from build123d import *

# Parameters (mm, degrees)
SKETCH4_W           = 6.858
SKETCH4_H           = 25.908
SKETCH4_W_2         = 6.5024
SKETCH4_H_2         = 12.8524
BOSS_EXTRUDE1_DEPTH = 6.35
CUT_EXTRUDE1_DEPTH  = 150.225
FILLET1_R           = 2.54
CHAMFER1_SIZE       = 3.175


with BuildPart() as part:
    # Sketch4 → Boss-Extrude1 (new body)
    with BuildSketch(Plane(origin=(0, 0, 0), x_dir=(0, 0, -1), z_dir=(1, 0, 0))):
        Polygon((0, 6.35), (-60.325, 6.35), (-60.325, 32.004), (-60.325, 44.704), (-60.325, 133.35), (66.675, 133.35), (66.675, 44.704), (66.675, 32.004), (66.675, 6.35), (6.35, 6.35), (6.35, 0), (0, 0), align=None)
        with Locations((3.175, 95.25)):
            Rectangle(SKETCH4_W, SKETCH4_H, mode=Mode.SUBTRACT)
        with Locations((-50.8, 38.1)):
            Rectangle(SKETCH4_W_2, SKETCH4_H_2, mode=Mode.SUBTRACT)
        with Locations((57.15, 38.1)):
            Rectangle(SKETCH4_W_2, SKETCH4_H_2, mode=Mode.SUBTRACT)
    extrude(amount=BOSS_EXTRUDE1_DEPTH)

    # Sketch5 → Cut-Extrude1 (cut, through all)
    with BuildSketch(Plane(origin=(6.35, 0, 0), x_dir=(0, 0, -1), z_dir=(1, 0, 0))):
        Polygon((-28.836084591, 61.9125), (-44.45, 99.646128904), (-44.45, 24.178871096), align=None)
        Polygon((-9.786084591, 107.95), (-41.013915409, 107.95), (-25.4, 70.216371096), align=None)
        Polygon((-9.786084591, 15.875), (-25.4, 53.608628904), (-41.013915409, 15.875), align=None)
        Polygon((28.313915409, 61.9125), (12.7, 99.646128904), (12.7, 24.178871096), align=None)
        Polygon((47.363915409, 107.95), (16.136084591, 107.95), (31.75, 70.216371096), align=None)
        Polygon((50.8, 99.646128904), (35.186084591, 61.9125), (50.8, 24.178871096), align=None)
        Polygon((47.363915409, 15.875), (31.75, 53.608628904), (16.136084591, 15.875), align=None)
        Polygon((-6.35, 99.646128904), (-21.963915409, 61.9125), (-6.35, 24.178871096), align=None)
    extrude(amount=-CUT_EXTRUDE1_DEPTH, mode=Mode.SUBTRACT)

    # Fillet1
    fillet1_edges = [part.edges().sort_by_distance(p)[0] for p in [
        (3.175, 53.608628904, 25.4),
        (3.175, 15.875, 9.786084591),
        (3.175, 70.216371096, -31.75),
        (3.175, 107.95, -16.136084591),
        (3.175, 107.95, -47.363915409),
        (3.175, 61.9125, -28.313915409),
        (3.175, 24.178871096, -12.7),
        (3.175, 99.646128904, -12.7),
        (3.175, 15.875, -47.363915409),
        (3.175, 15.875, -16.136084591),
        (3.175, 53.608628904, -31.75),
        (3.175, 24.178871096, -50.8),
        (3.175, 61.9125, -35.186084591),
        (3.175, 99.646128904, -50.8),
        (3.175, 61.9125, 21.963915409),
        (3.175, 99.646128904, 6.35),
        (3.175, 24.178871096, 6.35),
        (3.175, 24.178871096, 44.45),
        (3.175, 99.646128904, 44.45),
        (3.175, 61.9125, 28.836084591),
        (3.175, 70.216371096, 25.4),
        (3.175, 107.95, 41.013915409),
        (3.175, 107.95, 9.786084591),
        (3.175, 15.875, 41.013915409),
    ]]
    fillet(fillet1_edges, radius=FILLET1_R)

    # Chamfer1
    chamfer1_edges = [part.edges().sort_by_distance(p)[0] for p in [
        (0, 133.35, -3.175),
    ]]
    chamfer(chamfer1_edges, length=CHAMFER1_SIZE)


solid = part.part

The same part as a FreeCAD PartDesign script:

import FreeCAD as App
import Part
import Sketcher
Q = App.Units.Quantity


def edges_at(feature, points):
    """Names of the edges that pass closest to the given points."""
    edges = feature.Shape.Edges
    near = lambda p: min(range(len(edges)), key=lambda i: edges[i].distToShape(Part.Vertex(*p))[0])
    return sorted({f"Edge{near(p) + 1}" for p in points})

doc = App.newDocument("Part")
body = doc.addObject("PartDesign::Body", "Body")

sketch1 = doc.addObject("Sketcher::SketchObject", "Sketch")
body.addObject(sketch1)
sketch1.AttachmentSupport = (doc.YZ_Plane, [""])
sketch1.MapMode = "FlatFace"
sketch1.addGeometry([
    Part.LineSegment(App.Vector(6, 60, 0), App.Vector(6, 0, 0)),
    Part.LineSegment(App.Vector(6, 0, 0), App.Vector(0, 0, 0)),
    Part.LineSegment(App.Vector(0, 0, 0), App.Vector(0, -6, 0)),
    Part.LineSegment(App.Vector(0, -6, 0), App.Vector(6, -6, 0)),
    Part.LineSegment(App.Vector(6, -6, 0), App.Vector(6, -67, 0)),
    Part.LineSegment(App.Vector(6, -67, 0), App.Vector(133, -67, 0)),
    Part.LineSegment(App.Vector(133, -67, 0), App.Vector(133, 60, 0)),
    Part.LineSegment(App.Vector(133, 60, 0), App.Vector(6, 60, 0)),
    Part.LineSegment(App.Vector(32, -54, 0), App.Vector(45, -54, 0)),
    Part.LineSegment(App.Vector(45, -54, 0), App.Vector(45, -60, 0)),
    Part.LineSegment(App.Vector(45, -60, 0), App.Vector(32, -60, 0)),
    Part.LineSegment(App.Vector(32, -60, 0), App.Vector(32, -54, 0)),
    Part.LineSegment(App.Vector(32, 54, 0), App.Vector(45, 54, 0)),
    Part.LineSegment(App.Vector(45, 54, 0), App.Vector(45, 48, 0)),
    Part.LineSegment(App.Vector(45, 48, 0), App.Vector(32, 48, 0)),
    Part.LineSegment(App.Vector(32, 48, 0), App.Vector(32, 54, 0)),
    Part.LineSegment(App.Vector(82, 0, 0), App.Vector(108, 0, 0)),
    Part.LineSegment(App.Vector(108, 0, 0), App.Vector(108, -7, 0)),
    Part.LineSegment(App.Vector(108, -7, 0), App.Vector(82, -7, 0)),
    Part.LineSegment(App.Vector(82, -7, 0), App.Vector(82, 0, 0)),
], False)
sketch1.addConstraint([
    Sketcher.Constraint("Coincident", 0, 2, 1, 1),
    Sketcher.Constraint("Coincident", 1, 2, 2, 1),
    Sketcher.Constraint("Coincident", 2, 2, 3, 1),
    Sketcher.Constraint("Coincident", 3, 2, 4, 1),
    Sketcher.Constraint("Coincident", 4, 2, 5, 1),
    Sketcher.Constraint("Coincident", 5, 2, 6, 1),
    Sketcher.Constraint("Coincident", 6, 2, 7, 1),
    Sketcher.Constraint("Coincident", 7, 2, 0, 1),
    Sketcher.Constraint("Coincident", 8, 2, 9, 1),
    Sketcher.Constraint("Coincident", 9, 2, 10, 1),
    Sketcher.Constraint("Coincident", 10, 2, 11, 1),
    Sketcher.Constraint("Coincident", 11, 2, 8, 1),
    Sketcher.Constraint("Coincident", 12, 2, 13, 1),
    Sketcher.Constraint("Coincident", 13, 2, 14, 1),
    Sketcher.Constraint("Coincident", 14, 2, 15, 1),
    Sketcher.Constraint("Coincident", 15, 2, 12, 1),
    Sketcher.Constraint("Coincident", 16, 2, 17, 1),
    Sketcher.Constraint("Coincident", 17, 2, 18, 1),
    Sketcher.Constraint("Coincident", 18, 2, 19, 1),
    Sketcher.Constraint("Coincident", 19, 2, 16, 1),
    Sketcher.Constraint("Vertical", 0),
    Sketcher.Constraint("Horizontal", 1),
    Sketcher.Constraint("Vertical", 2),
    Sketcher.Constraint("Horizontal", 3),
    Sketcher.Constraint("Vertical", 4),
    Sketcher.Constraint("Horizontal", 5),
    Sketcher.Constraint("Vertical", 6),
    Sketcher.Constraint("Horizontal", 7),
    Sketcher.Constraint("Horizontal", 8),
    Sketcher.Constraint("Vertical", 9),
    Sketcher.Constraint("Horizontal", 10),
    Sketcher.Constraint("Vertical", 11),
    Sketcher.Constraint("Horizontal", 12),
    Sketcher.Constraint("Vertical", 13),
    Sketcher.Constraint("Horizontal", 14),
    Sketcher.Constraint("Vertical", 15),
    Sketcher.Constraint("Horizontal", 16),
    Sketcher.Constraint("Vertical", 17),
    Sketcher.Constraint("Horizontal", 18),
    Sketcher.Constraint("Vertical", 19),
    Sketcher.Constraint("Coincident", 1, 2, -1, 1),
    Sketcher.Constraint("Vertical", 0, 2, 3, 2),
    Sketcher.Constraint("Vertical", 9, 2, 12, 2),
    Sketcher.Constraint("Vertical", 11, 2, 14, 2),
    Sketcher.Constraint("Equal", 3, 2),
    Sketcher.Constraint("Equal", 0, 4),
    Sketcher.Constraint("Equal", 7, 6),
    Sketcher.Constraint("Equal", 11, 13),
    Sketcher.Constraint("DistanceX", 5, 1, 5, 2, Q("5 in")),
    Sketcher.Constraint("DistanceX", 1, 2, 1, 1, Q("0.25 in")),
    Sketcher.Constraint("DistanceX", 16, 1, 16, 2, Q("1.02 in")),
    Sketcher.Constraint("DistanceY", 17, 2, 17, 1, Q("0.27 in")),
    Sketcher.Constraint("DistanceX", 8, 1, 8, 2, Q("0.506 in")),
    Sketcher.Constraint("DistanceY", 9, 2, 9, 1, Q("0.256 in")),
    Sketcher.Constraint("DistanceX", -1, 1, 16, 2, Q("4.26 in")),
    Sketcher.Constraint("DistanceY", -1, 1, 16, 2, Q("0.01 in")),
    Sketcher.Constraint("DistanceX", -1, 1, 8, 2, Q("1.753 in")),
    Sketcher.Constraint("DistanceY", 8, 2, -1, 1, Q("2.122 in")),
    Sketcher.Constraint("DistanceY", -1, 1, 12, 2, Q("2.128 in")),
])
pad1 = doc.addObject("PartDesign::Pad", "Pad")
body.addObject(pad1)
pad1.Profile = sketch1
pad1.Length = Q("0.25 in")

sketch2 = doc.addObject("Sketcher::SketchObject", "Sketch001")
body.addObject(sketch2)
sketch2.AttachmentSupport = (doc.YZ_Plane, [""])
sketch2.MapMode = "FlatFace"
sketch2.AttachmentOffset = App.Placement(App.Vector(0, 0, 0.25 * 25.4), App.Rotation())
sketch2.addGeometry([
    Part.LineSegment(App.Vector(62, 29, 0), App.Vector(100, 44, 0)),
    Part.LineSegment(App.Vector(100, 44, 0), App.Vector(24, 44, 0)),
    Part.LineSegment(App.Vector(24, 44, 0), App.Vector(62, 29, 0)),
    Part.LineSegment(App.Vector(108, 10, 0), App.Vector(108, 41, 0)),
    Part.LineSegment(App.Vector(108, 41, 0), App.Vector(70, 25, 0)),
    Part.LineSegment(App.Vector(70, 25, 0), App.Vector(108, 10, 0)),
    Part.LineSegment(App.Vector(16, 10, 0), App.Vector(54, 25, 0)),
    Part.LineSegment(App.Vector(54, 25, 0), App.Vector(16, 41, 0)),
    Part.LineSegment(App.Vector(16, 41, 0), App.Vector(16, 10, 0)),
    Part.LineSegment(App.Vector(62, -28, 0), App.Vector(100, -13, 0)),
    Part.LineSegment(App.Vector(100, -13, 0), App.Vector(24, -13, 0)),
    Part.LineSegment(App.Vector(24, -13, 0), App.Vector(62, -28, 0)),
    Part.LineSegment(App.Vector(108, -47, 0), App.Vector(108, -16, 0)),
    Part.LineSegment(App.Vector(108, -16, 0), App.Vector(70, -32, 0)),
    Part.LineSegment(App.Vector(70, -32, 0), App.Vector(108, -47, 0)),
    Part.LineSegment(App.Vector(100, -51, 0), App.Vector(62, -35, 0)),
    Part.LineSegment(App.Vector(62, -35, 0), App.Vector(24, -51, 0)),
    Part.LineSegment(App.Vector(24, -51, 0), App.Vector(100, -51, 0)),
    Part.LineSegment(App.Vector(16, -47, 0), App.Vector(54, -32, 0)),
    Part.LineSegment(App.Vector(54, -32, 0), App.Vector(16, -16, 0)),
    Part.LineSegment(App.Vector(16, -16, 0), App.Vector(16, -47, 0)),
    Part.LineSegment(App.Vector(100, 6, 0), App.Vector(62, 22, 0)),
    Part.LineSegment(App.Vector(62, 22, 0), App.Vector(24, 6, 0)),
    Part.LineSegment(App.Vector(24, 6, 0), App.Vector(100, 6, 0)),
], False)
sketch2.addConstraint([
    Sketcher.Constraint("Coincident", 0, 2, 1, 1),
    Sketcher.Constraint("Coincident", 1, 2, 2, 1),
    Sketcher.Constraint("Coincident", 2, 2, 0, 1),
    Sketcher.Constraint("Coincident", 3, 2, 4, 1),
    Sketcher.Constraint("Coincident", 4, 2, 5, 1),
    Sketcher.Constraint("Coincident", 5, 2, 3, 1),
    Sketcher.Constraint("Coincident", 6, 2, 7, 1),
    Sketcher.Constraint("Coincident", 7, 2, 8, 1),
    Sketcher.Constraint("Coincident", 8, 2, 6, 1),
    Sketcher.Constraint("Coincident", 9, 2, 10, 1),
    Sketcher.Constraint("Coincident", 10, 2, 11, 1),
    Sketcher.Constraint("Coincident", 11, 2, 9, 1),
    Sketcher.Constraint("Coincident", 12, 2, 13, 1),
    Sketcher.Constraint("Coincident", 13, 2, 14, 1),
    Sketcher.Constraint("Coincident", 14, 2, 12, 1),
    Sketcher.Constraint("Coincident", 15, 2, 16, 1),
    Sketcher.Constraint("Coincident", 16, 2, 17, 1),
    Sketcher.Constraint("Coincident", 17, 2, 15, 1),
    Sketcher.Constraint("Coincident", 18, 2, 19, 1),
    Sketcher.Constraint("Coincident", 19, 2, 20, 1),
    Sketcher.Constraint("Coincident", 20, 2, 18, 1),
    Sketcher.Constraint("Coincident", 21, 2, 22, 1),
    Sketcher.Constraint("Coincident", 22, 2, 23, 1),
    Sketcher.Constraint("Coincident", 23, 2, 21, 1),
    Sketcher.Constraint("Horizontal", 1),
    Sketcher.Constraint("Vertical", 3),
    Sketcher.Constraint("Vertical", 8),
    Sketcher.Constraint("Horizontal", 10),
    Sketcher.Constraint("Vertical", 12),
    Sketcher.Constraint("Horizontal", 17),
    Sketcher.Constraint("Vertical", 20),
    Sketcher.Constraint("Horizontal", 23),
    Sketcher.Constraint("Parallel", 0, 4),
    Sketcher.Constraint("Parallel", 2, 5),
    Sketcher.Constraint("Parallel", 4, 6),
    Sketcher.Constraint("Parallel", 5, 7),
    Sketcher.Constraint("Parallel", 6, 9),
    Sketcher.Constraint("Parallel", 7, 11),
    Sketcher.Constraint("Parallel", 9, 13),
    Sketcher.Constraint("Parallel", 11, 14),
    Sketcher.Constraint("Parallel", 14, 15),
    Sketcher.Constraint("Parallel", 13, 16),
    Sketcher.Constraint("Parallel", 16, 18),
    Sketcher.Constraint("Parallel", 15, 19),
    Sketcher.Constraint("Parallel", 19, 21),
    Sketcher.Constraint("Parallel", 18, 22),
    Sketcher.Constraint("Horizontal", 4, 2, 6, 2),
    Sketcher.Constraint("Horizontal", 3, 2, 7, 2),
    Sketcher.Constraint("Horizontal", 5, 2, 8, 2),
    Sketcher.Constraint("Horizontal", 13, 2, 18, 2),
    Sketcher.Constraint("Horizontal", 12, 2, 19, 2),
    Sketcher.Constraint("Vertical", 0, 2, 9, 2),
    Sketcher.Constraint("Vertical", 1, 2, 10, 2),
    Sketcher.Constraint("Vertical", 5, 2, 12, 2),
    Sketcher.Constraint("Vertical", 4, 2, 13, 2),
    Sketcher.Constraint("Vertical", 11, 2, 15, 2),
    Sketcher.Constraint("Vertical", 10, 2, 16, 2),
    Sketcher.Constraint("Vertical", 6, 2, 18, 2),
    Sketcher.Constraint("Vertical", 15, 2, 21, 2),
    Sketcher.Constraint("Vertical", 16, 2, 22, 2),
    Sketcher.Constraint("Equal", 2, 4),
    Sketcher.Constraint("DistanceY", -1, 1, 4, 2, Q("1 in")),
    Sketcher.Constraint("DistanceY", 16, 2, -1, 1, Q("2 in")),
    Sketcher.Constraint("DistanceY", 9, 2, -1, 1, Q("0.5 in")),
    Sketcher.Constraint("DistanceY", -1, 1, 0, 2, Q("1.75 in")),
    Sketcher.Constraint("DistanceX", -1, 1, 3, 2, Q("4.25 in")),
    Sketcher.Constraint("DistanceY", 13, 2, -1, 1, Q("1.25 in")),
    Sketcher.Constraint("DistanceY", -1, 1, 22, 2, Q("0.25 in")),
    Sketcher.Constraint("DistanceX", -1, 1, 2, 2, Q("2.4375 in")),
    Sketcher.Constraint("DistanceX", -1, 1, 7, 2, Q("0.625 in")),
    Sketcher.Constraint("DistanceY", 3, 1, 3, 2, 31.227831),
    Sketcher.Constraint("DistanceX", 1, 2, 1, 1, 75.467258),
])
pocket1 = doc.addObject("PartDesign::Pocket", "Pocket")
body.addObject(pocket1)
pocket1.Profile = sketch2
pocket1.Type = "ThroughAll"
doc.recompute()

fillet = doc.addObject("PartDesign::Fillet", "Fillet")
body.addObject(fillet)
fillet.Base = (pocket1, edges_at(pocket1, [
    (3.175, 53.609, 25.4),
    (3.175, 15.875, 9.786),
    (3.175, 70.216, -31.75),
    (3.175, 107.95, -16.136),
    (3.175, 107.95, -47.364),
    (3.175, 61.913, -28.314),
    (3.175, 24.179, -12.7),
    (3.175, 99.646, -12.7),
    (3.175, 15.875, -47.364),
    (3.175, 15.875, -16.136),
    (3.175, 53.609, -31.75),
    (3.175, 24.179, -50.8),
    (3.175, 61.913, -35.186),
    (3.175, 99.646, -50.8),
    (3.175, 61.913, 21.964),
    (3.175, 99.646, 6.35),
    (3.175, 24.179, 6.35),
    (3.175, 24.179, 44.45),
    (3.175, 99.646, 44.45),
    (3.175, 61.913, 28.836),
    (3.175, 70.216, 25.4),
    (3.175, 107.95, 41.014),
    (3.175, 107.95, 9.786),
    (3.175, 15.875, 41.014),
]))
fillet.Radius = Q("0.1 in")
doc.recompute()

chamfer = doc.addObject("PartDesign::Chamfer", "Chamfer")
body.addObject(chamfer)
chamfer.Base = (fillet, edges_at(fillet, [(0, 133.35, -3.175)]))
chamfer.Size = Q("0.125 in")

doc.recompute()
